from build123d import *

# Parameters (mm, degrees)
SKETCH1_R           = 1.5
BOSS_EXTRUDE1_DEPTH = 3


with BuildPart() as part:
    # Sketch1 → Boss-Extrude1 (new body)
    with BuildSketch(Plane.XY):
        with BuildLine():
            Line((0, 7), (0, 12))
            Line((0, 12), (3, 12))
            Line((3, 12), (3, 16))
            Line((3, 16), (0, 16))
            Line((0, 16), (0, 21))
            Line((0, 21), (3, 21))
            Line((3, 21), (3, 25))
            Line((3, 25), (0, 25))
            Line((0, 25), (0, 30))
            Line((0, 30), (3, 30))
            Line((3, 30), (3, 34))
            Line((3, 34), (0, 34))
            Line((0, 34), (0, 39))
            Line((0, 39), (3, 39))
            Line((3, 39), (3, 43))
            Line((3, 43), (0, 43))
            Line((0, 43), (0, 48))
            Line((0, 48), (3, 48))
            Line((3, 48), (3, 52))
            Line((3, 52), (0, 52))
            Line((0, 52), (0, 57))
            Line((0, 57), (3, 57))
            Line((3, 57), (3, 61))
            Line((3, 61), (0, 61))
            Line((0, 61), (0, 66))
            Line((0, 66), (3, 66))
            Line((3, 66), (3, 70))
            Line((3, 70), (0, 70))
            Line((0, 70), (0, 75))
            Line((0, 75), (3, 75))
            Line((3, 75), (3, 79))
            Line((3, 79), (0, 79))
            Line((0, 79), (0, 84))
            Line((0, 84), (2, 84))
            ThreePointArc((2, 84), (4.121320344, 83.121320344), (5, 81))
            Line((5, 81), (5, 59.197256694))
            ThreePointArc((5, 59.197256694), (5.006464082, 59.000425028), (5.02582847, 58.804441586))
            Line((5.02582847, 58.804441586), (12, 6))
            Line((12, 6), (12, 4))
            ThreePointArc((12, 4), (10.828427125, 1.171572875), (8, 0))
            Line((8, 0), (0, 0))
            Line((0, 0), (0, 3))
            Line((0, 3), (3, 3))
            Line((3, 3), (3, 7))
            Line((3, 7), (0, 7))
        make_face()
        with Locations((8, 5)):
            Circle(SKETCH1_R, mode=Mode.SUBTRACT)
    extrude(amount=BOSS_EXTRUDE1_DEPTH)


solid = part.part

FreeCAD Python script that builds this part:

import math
import FreeCAD as App
import Part
import Sketcher

V = App.Vector

doc = App.newDocument("Part")
body = doc.addObject("PartDesign::Body", "Body")

# Sketch on XY plane
sketch1 = doc.addObject("Sketcher::SketchObject", "Sketch")
body.addObject(sketch1)
sketch1.AttachmentSupport = (doc.XY_Plane, [""])
sketch1.MapMode = "FlatFace"
sketch1.addGeometry(Part.LineSegment(V(0, 12, 0), V(0, 7, 0)), False)
sketch1.addGeometry(Part.LineSegment(V(0, 7, 0), V(3, 7, 0)), False)
sketch1.addGeometry(Part.LineSegment(V(3, 7, 0), V(3, 3, 0)), False)
sketch1.addGeometry(Part.LineSegment(V(3, 3, 0), V(0, 3, 0)), False)
sketch1.addGeometry(Part.LineSegment(V(0, 3, 0), V(0, 0, 0)), False)
sketch1.addGeometry(Part.LineSegment(V(0, 0, 0), V(8, 0, 0)), False)
sketch1.addGeometry(Part.ArcOfCircle(Part.Circle(V(8, 4, 0), V(0, 0, 1), 4), math.radians(-90), math.radians(0)), False)
sketch1.addGeometry(Part.LineSegment(V(12, 4, 0), V(12, 6, 0)), False)
sketch1.addGeometry(Part.LineSegment(V(12, 6, 0), V(5.03, 58.8, 0)), False)
sketch1.addGeometry(Part.ArcOfCircle(Part.Circle(V(8, 59.2, 0), V(0, 0, 1), 3), math.radians(-180), math.radians(-172.48)), False)
sketch1.addGeometry(Part.LineSegment(V(5, 59.2, 0), V(5, 81, 0)), False)
sketch1.addGeometry(Part.ArcOfCircle(Part.Circle(V(2, 81, 0), V(0, 0, 1), 3), math.radians(0), math.radians(90)), False)
sketch1.addGeometry(Part.LineSegment(V(2, 84, 0), V(0, 84, 0)), False)
sketch1.addGeometry(Part.LineSegment(V(0, 84, 0), V(0, 79, 0)), False)
sketch1.addGeometry(Part.LineSegment(V(0, 79, 0), V(3, 79, 0)), False)
sketch1.addGeometry(Part.LineSegment(V(3, 79, 0), V(3, 75, 0)), False)
sketch1.addGeometry(Part.LineSegment(V(3, 75, 0), V(0, 75, 0)), False)
sketch1.addGeometry(Part.LineSegment(V(0, 75, 0), V(0, 70, 0)), False)
sketch1.addGeometry(Part.LineSegment(V(0, 70, 0), V(3, 70, 0)), False)
sketch1.addGeometry(Part.LineSegment(V(3, 70, 0), V(3, 66, 0)), False)
sketch1.addGeometry(Part.LineSegment(V(3, 66, 0), V(0, 66, 0)), False)
sketch1.addGeometry(Part.LineSegment(V(0, 66, 0), V(0, 61, 0)), False)
sketch1.addGeometry(Part.LineSegment(V(0, 61, 0), V(3, 61, 0)), False)
sketch1.addGeometry(Part.LineSegment(V(3, 61, 0), V(3, 57, 0)), False)
sketch1.addGeometry(Part.LineSegment(V(3, 57, 0), V(0, 57, 0)), False)
sketch1.addGeometry(Part.LineSegment(V(0, 57, 0), V(0, 52, 0)), False)
sketch1.addGeometry(Part.LineSegment(V(0, 52, 0), V(3, 52, 0)), False)
sketch1.addGeometry(Part.LineSegment(V(3, 52, 0), V(3, 48, 0)), False)
sketch1.addGeometry(Part.LineSegment(V(3, 48, 0), V(0, 48, 0)), False)
sketch1.addGeometry(Part.LineSegment(V(0, 48, 0), V(0, 43, 0)), False)
sketch1.addGeometry(Part.LineSegment(V(0, 43, 0), V(3, 43, 0)), False)
sketch1.addGeometry(Part.LineSegment(V(3, 43, 0), V(3, 39, 0)), False)
sketch1.addGeometry(Part.LineSegment(V(3, 39, 0), V(0, 39, 0)), False)
sketch1.addGeometry(Part.LineSegment(V(0, 39, 0), V(0, 34, 0)), False)
sketch1.addGeometry(Part.LineSegment(V(0, 34, 0), V(3, 34, 0)), False)
sketch1.addGeometry(Part.LineSegment(V(3, 34, 0), V(3, 30, 0)), False)
sketch1.addGeometry(Part.LineSegment(V(3, 30, 0), V(0, 30, 0)), False)
sketch1.addGeometry(Part.LineSegment(V(0, 30, 0), V(0, 25, 0)), False)
sketch1.addGeometry(Part.LineSegment(V(0, 25, 0), V(3, 25, 0)), False)
sketch1.addGeometry(Part.LineSegment(V(3, 25, 0), V(3, 21, 0)), False)
sketch1.addGeometry(Part.LineSegment(V(3, 21, 0), V(0, 21, 0)), False)
sketch1.addGeometry(Part.LineSegment(V(0, 21, 0), V(0, 16, 0)), False)
sketch1.addGeometry(Part.LineSegment(V(0, 16, 0), V(3, 16, 0)), False)
sketch1.addGeometry(Part.LineSegment(V(3, 16, 0), V(3, 12, 0)), False)
sketch1.addGeometry(Part.LineSegment(V(3, 12, 0), V(0, 12, 0)), False)
sketch1.addGeometry(Part.Circle(V(8, 5, 0), V(0, 0, 1), 1.5), False)
sketch1.addConstraint(Sketcher.Constraint("Coincident", 0, 2, 1, 1))
sketch1.addConstraint(Sketcher.Constraint("Coincident", 1, 2, 2, 1))
sketch1.addConstraint(Sketcher.Constraint("Coincident", 2, 2, 3, 1))
sketch1.addConstraint(Sketcher.Constraint("Coincident", 3, 2, 4, 1))
sketch1.addConstraint(Sketcher.Constraint("Coincident", 4, 2, 5, 1))
sketch1.addConstraint(Sketcher.Constraint("Tangent", 5, 2, 6, 1))
sketch1.addConstraint(Sketcher.Constraint("Tangent", 6, 2, 7, 1))
sketch1.addConstraint(Sketcher.Constraint("Coincident", 7, 2, 8, 1))
sketch1.addConstraint(Sketcher.Constraint("Tangent", 8, 2, 9, 2))
sketch1.addConstraint(Sketcher.Constraint("Tangent", 9, 1, 10, 1))
sketch1.addConstraint(Sketcher.Constraint("Tangent", 10, 2, 11, 1))
sketch1.addConstraint(Sketcher.Constraint("Tangent", 11, 2, 12, 1))
sketch1.addConstraint(Sketcher.Constraint("Coincident", 12, 2, 13, 1))
sketch1.addConstraint(Sketcher.Constraint("Coincident", 13, 2, 14, 1))
sketch1.addConstraint(Sketcher.Constraint("Coincident", 14, 2, 15, 1))
sketch1.addConstraint(Sketcher.Constraint("Coincident", 15, 2, 16, 1))
sketch1.addConstraint(Sketcher.Constraint("Coincident", 16, 2, 17, 1))
sketch1.addConstraint(Sketcher.Constraint("Coincident", 17, 2, 18, 1))
sketch1.addConstraint(Sketcher.Constraint("Coincident", 18, 2, 19, 1))
sketch1.addConstraint(Sketcher.Constraint("Coincident", 19, 2, 20, 1))
sketch1.addConstraint(Sketcher.Constraint("Coincident", 20, 2, 21, 1))
sketch1.addConstraint(Sketcher.Constraint("Coincident", 21, 2, 22, 1))
sketch1.addConstraint(Sketcher.Constraint("Coincident", 22, 2, 23, 1))
sketch1.addConstraint(Sketcher.Constraint("Coincident", 23, 2, 24, 1))
sketch1.addConstraint(Sketcher.Constraint("Coincident", 24, 2, 25, 1))
sketch1.addConstraint(Sketcher.Constraint("Coincident", 25, 2, 26, 1))
sketch1.addConstraint(Sketcher.Constraint("Coincident", 26, 2, 27, 1))
sketch1.addConstraint(Sketcher.Constraint("Coincident", 27, 2, 28, 1))
sketch1.addConstraint(Sketcher.Constraint("Coincident", 28, 2, 29, 1))
sketch1.addConstraint(Sketcher.Constraint("Coincident", 29, 2, 30, 1))
sketch1.addConstraint(Sketcher.Constraint("Coincident", 30, 2, 31, 1))
sketch1.addConstraint(Sketcher.Constraint("Coincident", 31, 2, 32, 1))
sketch1.addConstraint(Sketcher.Constraint("Coincident", 32, 2, 33, 1))
sketch1.addConstraint(Sketcher.Constraint("Coincident", 33, 2, 34, 1))
sketch1.addConstraint(Sketcher.Constraint("Coincident", 34, 2, 35, 1))
sketch1.addConstraint(Sketcher.Constraint("Coincident", 35, 2, 36, 1))
sketch1.addConstraint(Sketcher.Constraint("Coincident", 36, 2, 37, 1))
sketch1.addConstraint(Sketcher.Constraint("Coincident", 37, 2, 38, 1))
sketch1.addConstraint(Sketcher.Constraint("Coincident", 38, 2, 39, 1))
sketch1.addConstraint(Sketcher.Constraint("Coincident", 39, 2, 40, 1))
sketch1.addConstraint(Sketcher.Constraint("Coincident", 40, 2, 41, 1))
sketch1.addConstraint(Sketcher.Constraint("Coincident", 41, 2, 42, 1))
sketch1.addConstraint(Sketcher.Constraint("Coincident", 42, 2, 43, 1))
sketch1.addConstraint(Sketcher.Constraint("Coincident", 43, 2, 44, 1))
sketch1.addConstraint(Sketcher.Constraint("Coincident", 44, 2, 0, 1))
sketch1.addConstraint(Sketcher.Constraint("Vertical", 0))
sketch1.addConstraint(Sketcher.Constraint("Horizontal", 1))
sketch1.addConstraint(Sketcher.Constraint("Vertical", 2))
sketch1.addConstraint(Sketcher.Constraint("Horizontal", 3))
sketch1.addConstraint(Sketcher.Constraint("Vertical", 4))
sketch1.addConstraint(Sketcher.Constraint("Horizontal", 5))
sketch1.addConstraint(Sketcher.Constraint("Vertical", 7))
sketch1.addConstraint(Sketcher.Constraint("Vertical", 10))
sketch1.addConstraint(Sketcher.Constraint("Horizontal", 12))
sketch1.addConstraint(Sketcher.Constraint("Vertical", 13))
sketch1.addConstraint(Sketcher.Constraint("Horizontal", 14))
sketch1.addConstraint(Sketcher.Constraint("Vertical", 15))
sketch1.addConstraint(Sketcher.Constraint("Horizontal", 16))
sketch1.addConstraint(Sketcher.Constraint("Vertical", 17))
sketch1.addConstraint(Sketcher.Constraint("Horizontal", 18))
sketch1.addConstraint(Sketcher.Constraint("Vertical", 19))
sketch1.addConstraint(Sketcher.Constraint("Horizontal", 20))
sketch1.addConstraint(Sketcher.Constraint("Vertical", 21))
sketch1.addConstraint(Sketcher.Constraint("Horizontal", 22))
sketch1.addConstraint(Sketcher.Constraint("Vertical", 23))
sketch1.addConstraint(Sketcher.Constraint("Horizontal", 24))
sketch1.addConstraint(Sketcher.Constraint("Vertical", 25))
sketch1.addConstraint(Sketcher.Constraint("Horizontal", 26))
sketch1.addConstraint(Sketcher.Constraint("Vertical", 27))
sketch1.addConstraint(Sketcher.Constraint("Horizontal", 28))
sketch1.addConstraint(Sketcher.Constraint("Vertical", 29))
sketch1.addConstraint(Sketcher.Constraint("Horizontal", 30))
sketch1.addConstraint(Sketcher.Constraint("Vertical", 31))
sketch1.addConstraint(Sketcher.Constraint("Horizontal", 32))
sketch1.addConstraint(Sketcher.Constraint("Vertical", 33))
sketch1.addConstraint(Sketcher.Constraint("Horizontal", 34))
sketch1.addConstraint(Sketcher.Constraint("Vertical", 35))
sketch1.addConstraint(Sketcher.Constraint("Horizontal", 36))
sketch1.addConstraint(Sketcher.Constraint("Vertical", 37))
sketch1.addConstraint(Sketcher.Constraint("Horizontal", 38))
sketch1.addConstraint(Sketcher.Constraint("Vertical", 39))
sketch1.addConstraint(Sketcher.Constraint("Horizontal", 40))
sketch1.addConstraint(Sketcher.Constraint("Vertical", 41))
sketch1.addConstraint(Sketcher.Constraint("Horizontal", 42))
sketch1.addConstraint(Sketcher.Constraint("Vertical", 43))
sketch1.addConstraint(Sketcher.Constraint("Horizontal", 44))
sketch1.addConstraint(Sketcher.Constraint("Coincident", 4, 2, -1, 1))
sketch1.addConstraint(Sketcher.Constraint("Equal", 9, 11))
sketch1.addConstraint(Sketcher.Constraint("PointOnObject", 0, 2, -2))
sketch1.addConstraint(Sketcher.Constraint("PointOnObject", 12, 2, -2))
sketch1.addConstraint(Sketcher.Constraint("PointOnObject", 16, 2, -2))
sketch1.addConstraint(Sketcher.Constraint("PointOnObject", 20, 2, -2))
sketch1.addConstraint(Sketcher.Constraint("PointOnObject", 24, 2, -2))
sketch1.addConstraint(Sketcher.Constraint("PointOnObject", 28, 2, -2))
sketch1.addConstraint(Sketcher.Constraint("PointOnObject", 32, 2, -2))
sketch1.addConstraint(Sketcher.Constraint("PointOnObject", 36, 2, -2))
sketch1.addConstraint(Sketcher.Constraint("PointOnObject", 40, 2, -2))
sketch1.addConstraint(Sketcher.Constraint("Vertical", 6, 3, 9, 3))
sketch1.addConstraint(Sketcher.Constraint("Vertical", 9, 3, 45, 3))
sketch1.addConstraint(Sketcher.Constraint("Vertical", 2, 2, 14, 2))
sketch1.addConstraint(Sketcher.Constraint("Vertical", 15, 2, 18, 2))
sketch1.addConstraint(Sketcher.Constraint("Vertical", 19, 2, 22, 2))
sketch1.addConstraint(Sketcher.Constraint("Vertical", 23, 2, 26, 2))
sketch1.addConstraint(Sketcher.Constraint("Vertical", 27, 2, 30, 2))
sketch1.addConstraint(Sketcher.Constraint("Vertical", 31, 2, 34, 2))
sketch1.addConstraint(Sketcher.Constraint("Vertical", 35, 2, 38, 2))
sketch1.addConstraint(Sketcher.Constraint("Vertical", 39, 2, 42, 2))
sketch1.addConstraint(Sketcher.Constraint("Equal", 44, 4))
sketch1.addConstraint(Sketcher.Constraint("Equal", 12, 7))
sketch1.addConstraint(Sketcher.Constraint("Equal", 0, 13))
sketch1.addConstraint(Sketcher.Constraint("Equal", 2, 15))
sketch1.addConstraint(Sketcher.Constraint("Equal", 13, 17))
sketch1.addConstraint(Sketcher.Constraint("Equal", 15, 19))
sketch1.addConstraint(Sketcher.Constraint("Equal", 17, 21))
sketch1.addConstraint(Sketcher.Constraint("Equal", 19, 23))
sketch1.addConstraint(Sketcher.Constraint("Equal", 21, 25))
sketch1.addConstraint(Sketcher.Constraint("Equal", 23, 27))
sketch1.addConstraint(Sketcher.Constraint("Equal", 25, 29))
sketch1.addConstraint(Sketcher.Constraint("Equal", 27, 31))
sketch1.addConstraint(Sketcher.Constraint("Equal", 29, 33))
sketch1.addConstraint(Sketcher.Constraint("Equal", 31, 35))
sketch1.addConstraint(Sketcher.Constraint("Equal", 33, 37))
sketch1.addConstraint(Sketcher.Constraint("Equal", 35, 39))
sketch1.addConstraint(Sketcher.Constraint("Equal", 37, 41))
sketch1.addConstraint(Sketcher.Constraint("Equal", 39, 43))
sketch1.addConstraint(Sketcher.Constraint("Diameter", 45, 3.0))
sketch1.addConstraint(Sketcher.Constraint("Radius", 6, 4.0))
sketch1.addConstraint(Sketcher.Constraint("Radius", 9, 3.0))
sketch1.addConstraint(Sketcher.Constraint("DistanceX", 1, 1, 1, 2, 3.0))
sketch1.addConstraint(Sketcher.Constraint("DistanceX", 5, 1, 5, 2, 8.0))
sketch1.addConstraint(Sketcher.Constraint("DistanceY", 0, 2, 0, 1, 5.0))
sketch1.addConstraint(Sketcher.Constraint("DistanceY", 2, 2, 2, 1, 4.0))
sketch1.addConstraint(Sketcher.Constraint("DistanceY", -1, 1, 45, 3, 5.0))
sketch1.addConstraint(Sketcher.Constraint("Distance", 8, 53.263009))
pad1 = doc.addObject("PartDesign::Pad", "Pad")
body.addObject(pad1)
pad1.Profile = sketch1
pad1.Length = 3

doc.recompute()
